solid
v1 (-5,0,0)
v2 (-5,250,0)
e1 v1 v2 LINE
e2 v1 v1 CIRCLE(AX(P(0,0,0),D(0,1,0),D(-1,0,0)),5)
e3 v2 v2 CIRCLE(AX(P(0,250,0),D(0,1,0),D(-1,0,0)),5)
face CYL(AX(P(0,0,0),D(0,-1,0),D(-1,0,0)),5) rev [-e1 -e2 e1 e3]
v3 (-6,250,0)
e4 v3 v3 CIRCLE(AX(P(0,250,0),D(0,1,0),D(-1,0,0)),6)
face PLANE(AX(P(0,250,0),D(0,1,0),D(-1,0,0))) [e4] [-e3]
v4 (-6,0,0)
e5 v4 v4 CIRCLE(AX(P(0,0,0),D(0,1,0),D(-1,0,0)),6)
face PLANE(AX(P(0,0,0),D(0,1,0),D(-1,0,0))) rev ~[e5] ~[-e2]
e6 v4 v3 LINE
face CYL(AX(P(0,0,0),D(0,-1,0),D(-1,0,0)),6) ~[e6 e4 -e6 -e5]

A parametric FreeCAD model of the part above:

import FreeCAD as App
import Part
import Sketcher

V = App.Vector

doc = App.newDocument("Part")
params = doc.addObject("Spreadsheet::Sheet", "Params")
for row, (alias, value) in enumerate([
    ("sketch1_diameter", "12 mm"),
    ("sketch1_diameter2", "10 mm"),
    ("pad1_length", "250 mm"),
], start=1):
    params.set(f"A{row}", alias)
    params.set(f"B{row}", "=" + value)
    params.setAlias(f"B{row}", alias)

body = doc.addObject("PartDesign::Body", "Body")

sketch1 = body.newObject("Sketcher::SketchObject", "Sketch")
sketch1.AttachmentSupport = (doc.getObject("XZ_Plane"), [""])
sketch1.MapMode = "FlatFace"
sketch1.addGeometry([
    Part.Circle(V(0, 0, 0), V(0, 0, 1), 6),
    Part.Circle(V(0, 0, 0), V(0, 0, 1), 5),
], False)
sketch1.addConstraint([
    Sketcher.Constraint("Coincident", 0, 3, -1, 1),
    Sketcher.Constraint("Coincident", 1, 3, -1, 1),
    Sketcher.Constraint("Diameter", 0, 12.0),
    Sketcher.Constraint("Diameter", 1, 10.0),
])
sketch1.setExpression("Constraints[2]", "Params.sketch1_diameter")
sketch1.setExpression("Constraints[3]", "Params.sketch1_diameter2")
pad1 = body.newObject("PartDesign::Pad", "Pad")
pad1.Profile = sketch1
pad1.setExpression("Length", "Params.pad1_length")
pad1.Reversed = True

doc.recompute()
